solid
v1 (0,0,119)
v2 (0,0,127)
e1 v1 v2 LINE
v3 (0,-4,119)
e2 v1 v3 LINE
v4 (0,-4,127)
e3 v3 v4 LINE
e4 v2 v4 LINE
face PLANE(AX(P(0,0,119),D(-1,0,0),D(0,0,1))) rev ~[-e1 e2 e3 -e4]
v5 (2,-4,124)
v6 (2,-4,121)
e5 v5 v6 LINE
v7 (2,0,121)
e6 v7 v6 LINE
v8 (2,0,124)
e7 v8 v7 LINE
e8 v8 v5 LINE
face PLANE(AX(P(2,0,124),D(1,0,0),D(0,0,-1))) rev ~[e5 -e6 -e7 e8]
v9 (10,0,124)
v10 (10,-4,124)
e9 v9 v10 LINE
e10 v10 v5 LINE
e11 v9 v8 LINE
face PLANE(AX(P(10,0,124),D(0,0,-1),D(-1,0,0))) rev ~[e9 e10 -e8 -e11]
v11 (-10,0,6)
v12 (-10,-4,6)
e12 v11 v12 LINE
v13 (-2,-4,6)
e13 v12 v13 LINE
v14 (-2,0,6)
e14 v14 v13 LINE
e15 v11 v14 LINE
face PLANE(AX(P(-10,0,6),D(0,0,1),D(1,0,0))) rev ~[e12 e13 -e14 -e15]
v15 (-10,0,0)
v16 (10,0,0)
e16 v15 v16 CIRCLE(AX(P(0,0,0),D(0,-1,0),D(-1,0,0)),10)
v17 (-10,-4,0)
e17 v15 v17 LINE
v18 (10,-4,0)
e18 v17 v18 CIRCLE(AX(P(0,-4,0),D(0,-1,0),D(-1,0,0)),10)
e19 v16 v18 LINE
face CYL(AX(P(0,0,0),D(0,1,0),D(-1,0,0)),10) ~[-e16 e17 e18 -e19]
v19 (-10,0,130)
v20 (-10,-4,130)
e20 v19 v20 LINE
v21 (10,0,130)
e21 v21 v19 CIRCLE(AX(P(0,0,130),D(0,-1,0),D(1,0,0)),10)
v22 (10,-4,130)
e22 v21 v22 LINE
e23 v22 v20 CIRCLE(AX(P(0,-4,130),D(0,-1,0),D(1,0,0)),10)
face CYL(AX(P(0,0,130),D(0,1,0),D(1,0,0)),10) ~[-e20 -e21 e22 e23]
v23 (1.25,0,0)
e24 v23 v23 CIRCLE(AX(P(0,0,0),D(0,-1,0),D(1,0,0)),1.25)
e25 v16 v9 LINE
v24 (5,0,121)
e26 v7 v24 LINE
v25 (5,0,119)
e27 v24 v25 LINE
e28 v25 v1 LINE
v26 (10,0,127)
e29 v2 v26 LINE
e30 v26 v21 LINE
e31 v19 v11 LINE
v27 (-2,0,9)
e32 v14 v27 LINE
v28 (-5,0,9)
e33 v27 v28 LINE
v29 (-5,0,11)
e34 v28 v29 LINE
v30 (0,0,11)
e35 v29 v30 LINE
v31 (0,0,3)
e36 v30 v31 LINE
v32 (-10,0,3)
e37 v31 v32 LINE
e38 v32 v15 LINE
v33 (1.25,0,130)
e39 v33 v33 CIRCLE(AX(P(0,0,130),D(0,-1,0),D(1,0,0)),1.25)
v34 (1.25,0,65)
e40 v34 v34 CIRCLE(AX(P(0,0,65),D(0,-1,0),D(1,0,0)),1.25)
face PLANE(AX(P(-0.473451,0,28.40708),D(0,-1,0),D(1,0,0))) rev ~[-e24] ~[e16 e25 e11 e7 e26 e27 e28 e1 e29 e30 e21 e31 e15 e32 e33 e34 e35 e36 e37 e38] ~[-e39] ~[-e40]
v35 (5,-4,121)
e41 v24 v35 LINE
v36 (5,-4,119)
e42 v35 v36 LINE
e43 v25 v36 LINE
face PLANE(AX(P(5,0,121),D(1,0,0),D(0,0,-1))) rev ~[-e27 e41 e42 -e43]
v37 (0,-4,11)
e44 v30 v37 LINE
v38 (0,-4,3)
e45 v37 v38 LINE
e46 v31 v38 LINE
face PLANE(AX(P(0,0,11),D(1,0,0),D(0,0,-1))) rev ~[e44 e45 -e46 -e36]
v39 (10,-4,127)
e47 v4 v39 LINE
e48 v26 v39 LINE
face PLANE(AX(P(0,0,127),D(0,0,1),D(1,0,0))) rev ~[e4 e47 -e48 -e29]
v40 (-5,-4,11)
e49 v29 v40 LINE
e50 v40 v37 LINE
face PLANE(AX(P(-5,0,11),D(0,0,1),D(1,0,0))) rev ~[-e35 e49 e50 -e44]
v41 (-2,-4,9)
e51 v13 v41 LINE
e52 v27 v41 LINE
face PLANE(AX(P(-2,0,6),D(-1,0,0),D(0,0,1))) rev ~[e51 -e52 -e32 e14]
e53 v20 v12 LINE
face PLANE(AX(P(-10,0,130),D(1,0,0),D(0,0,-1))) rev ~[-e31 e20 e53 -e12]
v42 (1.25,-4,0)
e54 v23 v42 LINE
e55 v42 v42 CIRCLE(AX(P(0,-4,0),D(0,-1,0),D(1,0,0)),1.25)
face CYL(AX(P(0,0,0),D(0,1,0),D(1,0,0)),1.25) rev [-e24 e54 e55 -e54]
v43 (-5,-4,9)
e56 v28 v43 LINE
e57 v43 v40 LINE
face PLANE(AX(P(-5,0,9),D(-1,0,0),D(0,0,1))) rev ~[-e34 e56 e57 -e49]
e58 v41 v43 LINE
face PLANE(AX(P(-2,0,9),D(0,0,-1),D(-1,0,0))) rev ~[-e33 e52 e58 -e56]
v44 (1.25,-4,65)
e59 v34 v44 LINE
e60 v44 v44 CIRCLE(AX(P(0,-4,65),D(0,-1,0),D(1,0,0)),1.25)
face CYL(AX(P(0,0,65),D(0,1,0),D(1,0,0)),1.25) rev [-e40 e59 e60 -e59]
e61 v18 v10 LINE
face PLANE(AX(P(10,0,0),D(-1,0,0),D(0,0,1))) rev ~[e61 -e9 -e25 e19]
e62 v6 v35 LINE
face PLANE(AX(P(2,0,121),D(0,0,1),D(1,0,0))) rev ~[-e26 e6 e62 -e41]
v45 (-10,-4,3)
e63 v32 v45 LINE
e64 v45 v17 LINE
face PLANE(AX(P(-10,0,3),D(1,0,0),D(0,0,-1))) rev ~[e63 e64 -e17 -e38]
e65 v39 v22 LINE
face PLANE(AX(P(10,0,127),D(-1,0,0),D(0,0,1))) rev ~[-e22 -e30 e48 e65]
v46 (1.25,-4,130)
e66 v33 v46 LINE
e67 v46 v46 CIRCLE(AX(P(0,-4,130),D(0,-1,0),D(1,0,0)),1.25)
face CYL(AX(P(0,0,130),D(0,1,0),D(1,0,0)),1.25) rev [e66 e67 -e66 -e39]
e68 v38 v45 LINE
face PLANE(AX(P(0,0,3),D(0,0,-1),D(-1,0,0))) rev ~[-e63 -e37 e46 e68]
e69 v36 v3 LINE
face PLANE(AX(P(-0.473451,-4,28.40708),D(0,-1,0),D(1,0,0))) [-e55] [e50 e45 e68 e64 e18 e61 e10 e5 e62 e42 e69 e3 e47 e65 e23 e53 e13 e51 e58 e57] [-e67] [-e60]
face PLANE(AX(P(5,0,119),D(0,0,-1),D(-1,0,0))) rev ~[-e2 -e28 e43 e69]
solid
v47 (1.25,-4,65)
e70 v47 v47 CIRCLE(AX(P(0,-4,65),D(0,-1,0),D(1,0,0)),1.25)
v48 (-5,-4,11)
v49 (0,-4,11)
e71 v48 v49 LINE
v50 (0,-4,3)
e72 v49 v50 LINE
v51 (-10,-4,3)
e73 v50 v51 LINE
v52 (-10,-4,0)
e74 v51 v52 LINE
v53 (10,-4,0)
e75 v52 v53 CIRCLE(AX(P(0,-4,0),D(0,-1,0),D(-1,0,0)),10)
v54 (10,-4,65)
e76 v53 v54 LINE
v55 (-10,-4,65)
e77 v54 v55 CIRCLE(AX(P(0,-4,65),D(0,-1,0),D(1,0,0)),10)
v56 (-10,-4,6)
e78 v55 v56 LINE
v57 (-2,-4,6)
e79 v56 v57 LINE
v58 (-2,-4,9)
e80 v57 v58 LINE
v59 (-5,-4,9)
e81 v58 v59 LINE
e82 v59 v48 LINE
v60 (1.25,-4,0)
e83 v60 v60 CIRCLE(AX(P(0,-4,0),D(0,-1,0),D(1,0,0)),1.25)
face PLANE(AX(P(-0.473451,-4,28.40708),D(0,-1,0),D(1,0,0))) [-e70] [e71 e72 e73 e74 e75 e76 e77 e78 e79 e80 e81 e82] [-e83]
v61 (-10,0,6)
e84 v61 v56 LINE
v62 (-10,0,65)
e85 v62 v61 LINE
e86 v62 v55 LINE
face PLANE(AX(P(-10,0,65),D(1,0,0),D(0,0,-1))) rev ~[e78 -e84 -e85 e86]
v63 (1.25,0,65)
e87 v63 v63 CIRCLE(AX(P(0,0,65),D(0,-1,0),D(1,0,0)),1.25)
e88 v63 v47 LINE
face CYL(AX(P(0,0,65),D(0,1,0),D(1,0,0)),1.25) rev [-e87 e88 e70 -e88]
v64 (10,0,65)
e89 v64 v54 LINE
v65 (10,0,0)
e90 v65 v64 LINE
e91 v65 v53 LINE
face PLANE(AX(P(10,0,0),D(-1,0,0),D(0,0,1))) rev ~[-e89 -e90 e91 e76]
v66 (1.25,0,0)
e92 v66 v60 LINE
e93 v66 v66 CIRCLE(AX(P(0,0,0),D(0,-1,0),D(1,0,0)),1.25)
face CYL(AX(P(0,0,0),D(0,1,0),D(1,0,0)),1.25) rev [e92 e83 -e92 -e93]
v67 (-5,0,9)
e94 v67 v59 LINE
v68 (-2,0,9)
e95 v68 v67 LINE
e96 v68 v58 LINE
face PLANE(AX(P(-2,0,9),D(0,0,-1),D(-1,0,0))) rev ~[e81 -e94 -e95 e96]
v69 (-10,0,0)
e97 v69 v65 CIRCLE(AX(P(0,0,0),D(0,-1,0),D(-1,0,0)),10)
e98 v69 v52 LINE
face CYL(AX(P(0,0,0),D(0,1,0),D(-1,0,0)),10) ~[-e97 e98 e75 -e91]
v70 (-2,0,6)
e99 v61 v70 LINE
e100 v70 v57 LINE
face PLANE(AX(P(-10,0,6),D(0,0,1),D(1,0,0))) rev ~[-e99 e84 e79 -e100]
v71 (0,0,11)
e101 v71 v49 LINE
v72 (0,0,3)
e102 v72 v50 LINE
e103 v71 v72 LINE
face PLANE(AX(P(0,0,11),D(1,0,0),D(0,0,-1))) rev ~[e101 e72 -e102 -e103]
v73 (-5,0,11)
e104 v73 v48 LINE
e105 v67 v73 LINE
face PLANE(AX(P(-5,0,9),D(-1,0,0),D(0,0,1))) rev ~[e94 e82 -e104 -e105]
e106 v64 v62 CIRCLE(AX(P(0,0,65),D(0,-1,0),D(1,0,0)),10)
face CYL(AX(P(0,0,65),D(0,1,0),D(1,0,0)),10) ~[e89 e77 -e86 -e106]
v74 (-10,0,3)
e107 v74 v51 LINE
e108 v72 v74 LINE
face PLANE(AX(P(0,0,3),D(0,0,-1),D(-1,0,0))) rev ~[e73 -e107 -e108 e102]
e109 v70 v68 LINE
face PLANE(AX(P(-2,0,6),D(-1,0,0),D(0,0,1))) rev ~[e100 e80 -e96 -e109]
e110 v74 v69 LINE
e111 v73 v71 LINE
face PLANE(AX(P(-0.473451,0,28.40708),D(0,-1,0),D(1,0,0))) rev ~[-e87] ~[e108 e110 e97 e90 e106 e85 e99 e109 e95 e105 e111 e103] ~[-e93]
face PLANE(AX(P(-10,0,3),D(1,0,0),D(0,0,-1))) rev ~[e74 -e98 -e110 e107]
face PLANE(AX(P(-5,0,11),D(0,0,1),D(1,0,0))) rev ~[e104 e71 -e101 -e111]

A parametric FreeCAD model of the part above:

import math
import FreeCAD as App
import Part
import Sketcher

V = App.Vector

doc = App.newDocument("Part")
body = doc.addObject("PartDesign::Body", "Body")

# Sketch on XZ plane
sketch1 = doc.addObject("Sketcher::SketchObject", "Sketch")
body.addObject(sketch1)
sketch1.AttachmentSupport = (doc.XZ_Plane, [""])
sketch1.MapMode = "FlatFace"
sketch1.addGeometry([
    Part.LineSegment(V(10, 0, 0), V(10, 124, 0)),  # 0
    Part.LineSegment(V(10, 124, 0), V(2, 124, 0)),  # 1
    Part.LineSegment(V(2, 124, 0), V(2, 121, 0)),  # 2
    Part.LineSegment(V(2, 121, 0), V(5, 121, 0)),  # 3
    Part.LineSegment(V(5, 121, 0), V(5, 119, 0)),  # 4
    Part.LineSegment(V(5, 119, 0), V(0, 119, 0)),  # 5
    Part.LineSegment(V(0, 119, 0), V(0, 127, 0)),  # 6
    Part.LineSegment(V(0, 127, 0), V(10, 127, 0)),  # 7
    Part.LineSegment(V(10, 127, 0), V(10, 130, 0)),  # 8
    Part.ArcOfCircle(Part.Circle(V(0, 130, 0), V(0, 0, 1), 10), math.radians(0), math.radians(180)),  # 9
    Part.LineSegment(V(-10, 130, 0), V(-10, 6, 0)),  # 10
    Part.LineSegment(V(-10, 6, 0), V(-2, 6, 0)),  # 11
    Part.LineSegment(V(-2, 6, 0), V(-2, 9, 0)),  # 12
    Part.LineSegment(V(-2, 9, 0), V(-5, 9, 0)),  # 13
    Part.LineSegment(V(-5, 9, 0), V(-5, 11, 0)),  # 14
    Part.LineSegment(V(-5, 11, 0), V(0, 11, 0)),  # 15
    Part.LineSegment(V(0, 11, 0), V(0, 3, 0)),  # 16
    Part.LineSegment(V(0, 3, 0), V(-10, 3, 0)),  # 17
    Part.LineSegment(V(-10, 3, 0), V(-10, 0, 0)),  # 18
    Part.ArcOfCircle(Part.Circle(V(0, 0, 0), V(0, 0, 1), 10), math.radians(180), math.radians(360)),  # 19
    Part.Circle(V(0, 0, 0), V(0, 0, 1), 1.25),  # 20
    Part.Circle(V(0, 65, 0), V(0, 0, 1), 1.25),  # 21
    Part.Circle(V(0, 130, 0), V(0, 0, 1), 1.25),  # 22
], False)
sketch1.addConstraint([
    Sketcher.Constraint("Coincident", 0, 2, 1, 1),
    Sketcher.Constraint("Coincident", 1, 2, 2, 1),
    Sketcher.Constraint("Coincident", 2, 2, 3, 1),
    Sketcher.Constraint("Coincident", 3, 2, 4, 1),
    Sketcher.Constraint("Coincident", 4, 2, 5, 1),
    Sketcher.Constraint("Coincident", 5, 2, 6, 1),
    Sketcher.Constraint("Coincident", 6, 2, 7, 1),
    Sketcher.Constraint("Coincident", 7, 2, 8, 1),
    Sketcher.Constraint("Tangent", 8, 2, 9, 1),
    Sketcher.Constraint("Tangent", 9, 2, 10, 1),
    Sketcher.Constraint("Coincident", 10, 2, 11, 1),
    Sketcher.Constraint("Coincident", 11, 2, 12, 1),
    Sketcher.Constraint("Coincident", 12, 2, 13, 1),
    Sketcher.Constraint("Coincident", 13, 2, 14, 1),
    Sketcher.Constraint("Coincident", 14, 2, 15, 1),
    Sketcher.Constraint("Coincident", 15, 2, 16, 1),
    Sketcher.Constraint("Coincident", 16, 2, 17, 1),
    Sketcher.Constraint("Coincident", 17, 2, 18, 1),
    Sketcher.Constraint("Tangent", 18, 2, 19, 1),
    Sketcher.Constraint("Tangent", 19, 2, 0, 1),
    Sketcher.Constraint("Vertical", 0),
    Sketcher.Constraint("Horizontal", 1),
    Sketcher.Constraint("Vertical", 2),
    Sketcher.Constraint("Horizontal", 3),
    Sketcher.Constraint("Vertical", 4),
    Sketcher.Constraint("Horizontal", 5),
    Sketcher.Constraint("Vertical", 6),
    Sketcher.Constraint("Horizontal", 7),
    Sketcher.Constraint("Vertical", 8),
    Sketcher.Constraint("Vertical", 10),
    Sketcher.Constraint("Horizontal", 11),
    Sketcher.Constraint("Vertical", 12),
    Sketcher.Constraint("Horizontal", 13),
    Sketcher.Constraint("Vertical", 14),
    Sketcher.Constraint("Horizontal", 15),
    Sketcher.Constraint("Vertical", 16),
    Sketcher.Constraint("Horizontal", 17),
    Sketcher.Constraint("Vertical", 18),
    Sketcher.Constraint("Coincident", 19, 3, -1, 1),
    Sketcher.Constraint("Coincident", 20, 3, -1, 1),
    Sketcher.Constraint("Coincident", 22, 3, 9, 3),
    Sketcher.Constraint("Equal", 9, 19),
    Sketcher.Constraint("Equal", 20, 21),
    Sketcher.Constraint("Equal", 21, 22),
    Sketcher.Constraint("PointOnObject", 9, 3, -2),
    Sketcher.Constraint("PointOnObject", 21, 3, -2),
    Sketcher.Constraint("PointOnObject", 5, 2, -2),
    Sketcher.Constraint("PointOnObject", 15, 2, -2),
    Sketcher.Constraint("Equal", 1, 11),
    Sketcher.Constraint("Equal", 3, 13),
    Sketcher.Constraint("Equal", 13, 2),
    Sketcher.Constraint("Equal", 11, 6),
    Sketcher.Constraint("Equal", 2, 8),
    Sketcher.Constraint("Equal", 0, 10),
    Sketcher.Constraint("Equal", 8, 12),
    Sketcher.Constraint("Equal", 4, 14),
    Sketcher.Constraint("Equal", 6, 16),
    Sketcher.Constraint("Radius", 9, 10.0),
    Sketcher.Constraint("Diameter", 20, 2.5),
    Sketcher.Constraint("DistanceX", 1, 2, 1, 1, 8.0),
    Sketcher.Constraint("DistanceX", 3, 1, 3, 2, 3.0),
    Sketcher.Constraint("DistanceY", 0, 1, 0, 2, 124.0),
    Sketcher.Constraint("DistanceY", 4, 2, 4, 1, 2.0),
    Sketcher.Constraint("DistanceY", -1, 1, 21, 3, 65.0),
])
pad1 = doc.addObject("PartDesign::Pad", "Pad")
body.addObject(pad1)
pad1.Profile = sketch1
pad1.Length = 4
body2 = doc.addObject("PartDesign::Body", "Body001")

# Sketch on XZ plane
sketch2 = doc.addObject("Sketcher::SketchObject", "Sketch001")
body2.addObject(sketch2)
sketch2.AttachmentSupport = (doc.getObject("XZ_Plane001"), [""])
sketch2.MapMode = "FlatFace"
sketch2.addGeometry([
    Part.LineSegment(V(10, 0, 0), V(10, 65, 0)),  # 0
    Part.ArcOfCircle(Part.Circle(V(0, 65, 0), V(0, 0, 1), 10), math.radians(0), math.radians(180)),  # 1
    Part.LineSegment(V(-10, 65, 0), V(-10, 6, 0)),  # 2
    Part.LineSegment(V(-10, 6, 0), V(-2, 6, 0)),  # 3
    Part.LineSegment(V(-2, 6, 0), V(-2, 9, 0)),  # 4
    Part.LineSegment(V(-2, 9, 0), V(-5, 9, 0)),  # 5
    Part.LineSegment(V(-5, 9, 0), V(-5, 11, 0)),  # 6
    Part.LineSegment(V(-5, 11, 0), V(0, 11, 0)),  # 7
    Part.LineSegment(V(0, 11, 0), V(0, 3, 0)),  # 8
    Part.LineSegment(V(0, 3, 0), V(-10, 3, 0)),  # 9
    Part.LineSegment(V(-10, 3, 0), V(-10, 0, 0)),  # 10
    Part.ArcOfCircle(Part.Circle(V(0, 0, 0), V(0, 0, 1), 10), math.radians(180), math.radians(360)),  # 11
    Part.Circle(V(0, 0, 0), V(0, 0, 1), 1.25),  # 12
    Part.Circle(V(0, 65, 0), V(0, 0, 1), 1.25),  # 13
], False)
sketch2.addConstraint([
    Sketcher.Constraint("Tangent", 0, 2, 1, 1),
    Sketcher.Constraint("Tangent", 1, 2, 2, 1),
    Sketcher.Constraint("Coincident", 2, 2, 3, 1),
    Sketcher.Constraint("Coincident", 3, 2, 4, 1),
    Sketcher.Constraint("Coincident", 4, 2, 5, 1),
    Sketcher.Constraint("Coincident", 5, 2, 6, 1),
    Sketcher.Constraint("Coincident", 6, 2, 7, 1),
    Sketcher.Constraint("Coincident", 7, 2, 8, 1),
    Sketcher.Constraint("Coincident", 8, 2, 9, 1),
    Sketcher.Constraint("Coincident", 9, 2, 10, 1),
    Sketcher.Constraint("Tangent", 10, 2, 11, 1),
    Sketcher.Constraint("Tangent", 11, 2, 0, 1),
    Sketcher.Constraint("Vertical", 0),
    Sketcher.Constraint("Vertical", 2),
    Sketcher.Constraint("Horizontal", 3),
    Sketcher.Constraint("Vertical", 4),
    Sketcher.Constraint("Horizontal", 5),
    Sketcher.Constraint("Vertical", 6),
    Sketcher.Constraint("Horizontal", 7),
    Sketcher.Constraint("Vertical", 8),
    Sketcher.Constraint("Horizontal", 9),
    Sketcher.Constraint("Vertical", 10),
    Sketcher.Constraint("Coincident", 11, 3, -1, 1),
    Sketcher.Constraint("Coincident", 12, 3, -1, 1),
    Sketcher.Constraint("Coincident", 13, 3, 1, 3),
    Sketcher.Constraint("Equal", 1, 11),
    Sketcher.Constraint("Equal", 12, 13),
    Sketcher.Constraint("PointOnObject", 7, 2, -2),
    Sketcher.Constraint("Equal", 5, 4),
    Sketcher.Constraint("Equal", 3, 8),
    Sketcher.Constraint("Equal", 4, 10),
    Sketcher.Constraint("Radius", 1, 10.0),
    Sketcher.Constraint("Diameter", 12, 2.5),
    Sketcher.Constraint("DistanceX", 3, 1, 3, 2, 8.0),
    Sketcher.Constraint("DistanceX", 5, 2, 5, 1, 3.0),
    Sketcher.Constraint("DistanceY", 0, 1, 0, 2, 65.0),
    Sketcher.Constraint("DistanceY", 2, 2, 2, 1, 59.0),
])
pad2 = doc.addObject("PartDesign::Pad", "Pad001")
body2.addObject(pad2)
pad2.Profile = sketch2
pad2.Length = 4

doc.recompute()
